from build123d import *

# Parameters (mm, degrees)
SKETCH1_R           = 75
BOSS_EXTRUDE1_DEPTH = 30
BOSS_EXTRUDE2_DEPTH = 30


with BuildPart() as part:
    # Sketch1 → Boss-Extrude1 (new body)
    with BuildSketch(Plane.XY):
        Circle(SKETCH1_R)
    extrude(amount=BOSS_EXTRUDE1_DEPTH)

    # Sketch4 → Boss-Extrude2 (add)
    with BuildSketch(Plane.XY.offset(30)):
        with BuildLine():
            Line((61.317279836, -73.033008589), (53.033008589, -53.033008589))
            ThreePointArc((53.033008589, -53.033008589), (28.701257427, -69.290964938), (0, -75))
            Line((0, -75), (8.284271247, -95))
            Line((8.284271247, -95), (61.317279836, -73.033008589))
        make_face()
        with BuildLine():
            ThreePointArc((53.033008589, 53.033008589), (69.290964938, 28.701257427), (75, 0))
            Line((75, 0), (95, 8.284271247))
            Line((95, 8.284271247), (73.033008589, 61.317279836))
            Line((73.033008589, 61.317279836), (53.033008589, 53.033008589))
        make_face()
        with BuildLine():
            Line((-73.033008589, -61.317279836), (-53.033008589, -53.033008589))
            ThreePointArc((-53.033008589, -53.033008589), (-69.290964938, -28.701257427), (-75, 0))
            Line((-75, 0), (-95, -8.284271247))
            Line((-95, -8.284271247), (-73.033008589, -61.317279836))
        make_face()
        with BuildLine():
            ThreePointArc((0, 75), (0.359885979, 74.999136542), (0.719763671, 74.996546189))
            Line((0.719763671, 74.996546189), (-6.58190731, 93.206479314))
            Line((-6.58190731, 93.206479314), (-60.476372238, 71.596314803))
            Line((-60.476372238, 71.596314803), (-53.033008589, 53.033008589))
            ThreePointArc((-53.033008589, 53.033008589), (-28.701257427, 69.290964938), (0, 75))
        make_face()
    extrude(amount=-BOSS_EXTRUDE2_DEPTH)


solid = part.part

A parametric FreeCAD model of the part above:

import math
import FreeCAD as App
import Part
import Sketcher

V = App.Vector
Q = App.Units.Quantity

doc = App.newDocument("Part")
body = doc.addObject("PartDesign::Body", "Body")

sketch1 = doc.addObject("Sketcher::SketchObject", "Sketch")
body.addObject(sketch1)
sketch1.AttachmentSupport = (doc.XY_Plane, [""])
sketch1.MapMode = "FlatFace"
sketch1.addGeometry(Part.Circle(V(0, 0, 0), V(0, 0, 1), 75), False)
sketch1.addConstraint([
    Sketcher.Constraint("Coincident", 0, 3, -1, 1),
    Sketcher.Constraint("Diameter", 0, Q("150 mm")),
])
pad1 = doc.addObject("PartDesign::Pad", "Pad")
body.addObject(pad1)
pad1.Profile = sketch1
pad1.Length = 30

sketch2 = doc.addObject("Sketcher::SketchObject", "Sketch001")
body.addObject(sketch2)
sketch2.AttachmentSupport = (doc.XY_Plane, [""])
sketch2.MapMode = "FlatFace"
sketch2.AttachmentOffset = App.Placement(V(0, 0, 30), App.Rotation())
sketch2.addGeometry([
    Part.LineSegment(V(61.31728, -73.033009, 0), V(53.033009, -53.033009, 0)),
    Part.ArcOfCircle(Part.Circle(V(0, 0, 0), V(0, 0, 1), 75), math.radians(-90), math.radians(-45)),
    Part.LineSegment(V(0, -75, 0), V(8.284271, -95, 0)),
    Part.LineSegment(V(8.284271, -95, 0), V(61.31728, -73.033009, 0)),
    Part.ArcOfCircle(Part.Circle(V(0, 0, 0), V(0, 0, 1), 75), math.radians(0), math.radians(45)),
    Part.LineSegment(V(75, 0, 0), V(95, 8.284271, 0)),
    Part.LineSegment(V(95, 8.284271, 0), V(73.033009, 61.31728, 0)),
    Part.LineSegment(V(73.033009, 61.31728, 0), V(53.033009, 53.033009, 0)),
    Part.LineSegment(V(-73.033009, -61.31728, 0), V(-53.033009, -53.033009, 0)),
    Part.ArcOfCircle(Part.Circle(V(0, 0, 0), V(0, 0, 1), 75), math.radians(-180), math.radians(-135)),
    Part.LineSegment(V(-75, 0, 0), V(-95, -8.284271, 0)),
    Part.LineSegment(V(-95, -8.284271, 0), V(-73.033009, -61.31728, 0)),
    Part.ArcOfCircle(Part.Circle(V(0, -0.000027, 0), V(0, 0, 1), 75.000027), math.radians(89.450133), math.radians(90)),
    Part.LineSegment(V(0.719764, 74.996546, 0), V(-6.581907, 93.206479, 0)),
    Part.LineSegment(V(-6.581907, 93.206479, 0), V(-60.476372, 71.596315, 0)),
    Part.LineSegment(V(-60.476372, 71.596315, 0), V(-53.033009, 53.033009, 0)),
    Part.ArcOfCircle(Part.Circle(V(0, 0, 0), V(0, 0, 1), 75), math.radians(90), math.radians(135)),
], False)
sketch2.addConstraint([
    Sketcher.Constraint("Coincident", 0, 2, 1, 2),
    Sketcher.Constraint("Coincident", 1, 1, 2, 1),
    Sketcher.Constraint("Coincident", 2, 2, 3, 1),
    Sketcher.Constraint("Coincident", 3, 2, 0, 1),
    Sketcher.Constraint("Coincident", 4, 1, 5, 1),
    Sketcher.Constraint("Coincident", 5, 2, 6, 1),
    Sketcher.Constraint("Coincident", 6, 2, 7, 1),
    Sketcher.Constraint("Coincident", 7, 2, 4, 2),
    Sketcher.Constraint("Coincident", 8, 2, 9, 2),
    Sketcher.Constraint("Coincident", 9, 1, 10, 1),
    Sketcher.Constraint("Coincident", 10, 2, 11, 1),
    Sketcher.Constraint("Coincident", 11, 2, 8, 1),
    Sketcher.Constraint("Coincident", 12, 1, 13, 1),
    Sketcher.Constraint("Coincident", 13, 2, 14, 1),
    Sketcher.Constraint("Coincident", 14, 2, 15, 1),
    Sketcher.Constraint("Coincident", 15, 2, 16, 2),
    Sketcher.Constraint("Tangent", 16, 1, 12, 2),
    Sketcher.Constraint("Coincident", 1, 3, -1, 1),
    Sketcher.Constraint("Coincident", 4, 3, -1, 1),
    Sketcher.Constraint("Coincident", 9, 3, -1, 1),
    Sketcher.Constraint("Coincident", 16, 3, -1, 1),
    Sketcher.Constraint("Equal", 1, 4),
    Sketcher.Constraint("Equal", 4, 9),
    Sketcher.Constraint("Equal", 9, 16),
    Sketcher.Constraint("Symmetric", 5, 2, 10, 2, -1, 1),
    Sketcher.Constraint("Symmetric", 6, 2, 11, 2, -1, 1),
    Sketcher.Constraint("PointOnObject", 1, 1, -2),
    Sketcher.Constraint("PointOnObject", 4, 1, -1),
    Sketcher.Constraint("PointOnObject", 9, 1, -1),
    Sketcher.Constraint("PointOnObject", 16, 1, -2),
    Sketcher.Constraint("Parallel", 0, 2),
    Sketcher.Constraint("Perpendicular", 2, 3),
    Sketcher.Constraint("Parallel", 3, 5),
    Sketcher.Constraint("Perpendicular", 5, 6),
    Sketcher.Constraint("Perpendicular", 6, 7),
    Sketcher.Constraint("Parallel", 7, 8),
    Sketcher.Constraint("Perpendicular", 13, 14),
    Sketcher.Constraint("Perpendicular", 14, 15),
    Sketcher.Constraint("Horizontal", 0, 2, 8, 2),
    Sketcher.Constraint("Horizontal", 7, 2, 15, 2),
    Sketcher.Constraint("Equal", 0, 2),
    Sketcher.Constraint("Equal", 2, 5),
    Sketcher.Constraint("Equal", 3, 6),
    Sketcher.Constraint("Radius", 1, Q("75 mm")),
    Sketcher.Constraint("Distance", 15, Q("20 mm")),
    Sketcher.Constraint("DistanceY", 2, 2, -1, 1, Q("95 mm")),
    Sketcher.Constraint("Radius", 12, Q("75.000027 mm")),
    Sketcher.Constraint("DistanceY", 6, 2, 13, 2, Q("31.889199 mm")),
    Sketcher.Constraint("DistanceX", 15, 2, 13, 2, Q("46.451101 mm")),
])
pad2 = doc.addObject("PartDesign::Pad", "Pad001")
body.addObject(pad2)
pad2.Profile = sketch2
pad2.Length = 30
pad2.Reversed = True

doc.recompute()
